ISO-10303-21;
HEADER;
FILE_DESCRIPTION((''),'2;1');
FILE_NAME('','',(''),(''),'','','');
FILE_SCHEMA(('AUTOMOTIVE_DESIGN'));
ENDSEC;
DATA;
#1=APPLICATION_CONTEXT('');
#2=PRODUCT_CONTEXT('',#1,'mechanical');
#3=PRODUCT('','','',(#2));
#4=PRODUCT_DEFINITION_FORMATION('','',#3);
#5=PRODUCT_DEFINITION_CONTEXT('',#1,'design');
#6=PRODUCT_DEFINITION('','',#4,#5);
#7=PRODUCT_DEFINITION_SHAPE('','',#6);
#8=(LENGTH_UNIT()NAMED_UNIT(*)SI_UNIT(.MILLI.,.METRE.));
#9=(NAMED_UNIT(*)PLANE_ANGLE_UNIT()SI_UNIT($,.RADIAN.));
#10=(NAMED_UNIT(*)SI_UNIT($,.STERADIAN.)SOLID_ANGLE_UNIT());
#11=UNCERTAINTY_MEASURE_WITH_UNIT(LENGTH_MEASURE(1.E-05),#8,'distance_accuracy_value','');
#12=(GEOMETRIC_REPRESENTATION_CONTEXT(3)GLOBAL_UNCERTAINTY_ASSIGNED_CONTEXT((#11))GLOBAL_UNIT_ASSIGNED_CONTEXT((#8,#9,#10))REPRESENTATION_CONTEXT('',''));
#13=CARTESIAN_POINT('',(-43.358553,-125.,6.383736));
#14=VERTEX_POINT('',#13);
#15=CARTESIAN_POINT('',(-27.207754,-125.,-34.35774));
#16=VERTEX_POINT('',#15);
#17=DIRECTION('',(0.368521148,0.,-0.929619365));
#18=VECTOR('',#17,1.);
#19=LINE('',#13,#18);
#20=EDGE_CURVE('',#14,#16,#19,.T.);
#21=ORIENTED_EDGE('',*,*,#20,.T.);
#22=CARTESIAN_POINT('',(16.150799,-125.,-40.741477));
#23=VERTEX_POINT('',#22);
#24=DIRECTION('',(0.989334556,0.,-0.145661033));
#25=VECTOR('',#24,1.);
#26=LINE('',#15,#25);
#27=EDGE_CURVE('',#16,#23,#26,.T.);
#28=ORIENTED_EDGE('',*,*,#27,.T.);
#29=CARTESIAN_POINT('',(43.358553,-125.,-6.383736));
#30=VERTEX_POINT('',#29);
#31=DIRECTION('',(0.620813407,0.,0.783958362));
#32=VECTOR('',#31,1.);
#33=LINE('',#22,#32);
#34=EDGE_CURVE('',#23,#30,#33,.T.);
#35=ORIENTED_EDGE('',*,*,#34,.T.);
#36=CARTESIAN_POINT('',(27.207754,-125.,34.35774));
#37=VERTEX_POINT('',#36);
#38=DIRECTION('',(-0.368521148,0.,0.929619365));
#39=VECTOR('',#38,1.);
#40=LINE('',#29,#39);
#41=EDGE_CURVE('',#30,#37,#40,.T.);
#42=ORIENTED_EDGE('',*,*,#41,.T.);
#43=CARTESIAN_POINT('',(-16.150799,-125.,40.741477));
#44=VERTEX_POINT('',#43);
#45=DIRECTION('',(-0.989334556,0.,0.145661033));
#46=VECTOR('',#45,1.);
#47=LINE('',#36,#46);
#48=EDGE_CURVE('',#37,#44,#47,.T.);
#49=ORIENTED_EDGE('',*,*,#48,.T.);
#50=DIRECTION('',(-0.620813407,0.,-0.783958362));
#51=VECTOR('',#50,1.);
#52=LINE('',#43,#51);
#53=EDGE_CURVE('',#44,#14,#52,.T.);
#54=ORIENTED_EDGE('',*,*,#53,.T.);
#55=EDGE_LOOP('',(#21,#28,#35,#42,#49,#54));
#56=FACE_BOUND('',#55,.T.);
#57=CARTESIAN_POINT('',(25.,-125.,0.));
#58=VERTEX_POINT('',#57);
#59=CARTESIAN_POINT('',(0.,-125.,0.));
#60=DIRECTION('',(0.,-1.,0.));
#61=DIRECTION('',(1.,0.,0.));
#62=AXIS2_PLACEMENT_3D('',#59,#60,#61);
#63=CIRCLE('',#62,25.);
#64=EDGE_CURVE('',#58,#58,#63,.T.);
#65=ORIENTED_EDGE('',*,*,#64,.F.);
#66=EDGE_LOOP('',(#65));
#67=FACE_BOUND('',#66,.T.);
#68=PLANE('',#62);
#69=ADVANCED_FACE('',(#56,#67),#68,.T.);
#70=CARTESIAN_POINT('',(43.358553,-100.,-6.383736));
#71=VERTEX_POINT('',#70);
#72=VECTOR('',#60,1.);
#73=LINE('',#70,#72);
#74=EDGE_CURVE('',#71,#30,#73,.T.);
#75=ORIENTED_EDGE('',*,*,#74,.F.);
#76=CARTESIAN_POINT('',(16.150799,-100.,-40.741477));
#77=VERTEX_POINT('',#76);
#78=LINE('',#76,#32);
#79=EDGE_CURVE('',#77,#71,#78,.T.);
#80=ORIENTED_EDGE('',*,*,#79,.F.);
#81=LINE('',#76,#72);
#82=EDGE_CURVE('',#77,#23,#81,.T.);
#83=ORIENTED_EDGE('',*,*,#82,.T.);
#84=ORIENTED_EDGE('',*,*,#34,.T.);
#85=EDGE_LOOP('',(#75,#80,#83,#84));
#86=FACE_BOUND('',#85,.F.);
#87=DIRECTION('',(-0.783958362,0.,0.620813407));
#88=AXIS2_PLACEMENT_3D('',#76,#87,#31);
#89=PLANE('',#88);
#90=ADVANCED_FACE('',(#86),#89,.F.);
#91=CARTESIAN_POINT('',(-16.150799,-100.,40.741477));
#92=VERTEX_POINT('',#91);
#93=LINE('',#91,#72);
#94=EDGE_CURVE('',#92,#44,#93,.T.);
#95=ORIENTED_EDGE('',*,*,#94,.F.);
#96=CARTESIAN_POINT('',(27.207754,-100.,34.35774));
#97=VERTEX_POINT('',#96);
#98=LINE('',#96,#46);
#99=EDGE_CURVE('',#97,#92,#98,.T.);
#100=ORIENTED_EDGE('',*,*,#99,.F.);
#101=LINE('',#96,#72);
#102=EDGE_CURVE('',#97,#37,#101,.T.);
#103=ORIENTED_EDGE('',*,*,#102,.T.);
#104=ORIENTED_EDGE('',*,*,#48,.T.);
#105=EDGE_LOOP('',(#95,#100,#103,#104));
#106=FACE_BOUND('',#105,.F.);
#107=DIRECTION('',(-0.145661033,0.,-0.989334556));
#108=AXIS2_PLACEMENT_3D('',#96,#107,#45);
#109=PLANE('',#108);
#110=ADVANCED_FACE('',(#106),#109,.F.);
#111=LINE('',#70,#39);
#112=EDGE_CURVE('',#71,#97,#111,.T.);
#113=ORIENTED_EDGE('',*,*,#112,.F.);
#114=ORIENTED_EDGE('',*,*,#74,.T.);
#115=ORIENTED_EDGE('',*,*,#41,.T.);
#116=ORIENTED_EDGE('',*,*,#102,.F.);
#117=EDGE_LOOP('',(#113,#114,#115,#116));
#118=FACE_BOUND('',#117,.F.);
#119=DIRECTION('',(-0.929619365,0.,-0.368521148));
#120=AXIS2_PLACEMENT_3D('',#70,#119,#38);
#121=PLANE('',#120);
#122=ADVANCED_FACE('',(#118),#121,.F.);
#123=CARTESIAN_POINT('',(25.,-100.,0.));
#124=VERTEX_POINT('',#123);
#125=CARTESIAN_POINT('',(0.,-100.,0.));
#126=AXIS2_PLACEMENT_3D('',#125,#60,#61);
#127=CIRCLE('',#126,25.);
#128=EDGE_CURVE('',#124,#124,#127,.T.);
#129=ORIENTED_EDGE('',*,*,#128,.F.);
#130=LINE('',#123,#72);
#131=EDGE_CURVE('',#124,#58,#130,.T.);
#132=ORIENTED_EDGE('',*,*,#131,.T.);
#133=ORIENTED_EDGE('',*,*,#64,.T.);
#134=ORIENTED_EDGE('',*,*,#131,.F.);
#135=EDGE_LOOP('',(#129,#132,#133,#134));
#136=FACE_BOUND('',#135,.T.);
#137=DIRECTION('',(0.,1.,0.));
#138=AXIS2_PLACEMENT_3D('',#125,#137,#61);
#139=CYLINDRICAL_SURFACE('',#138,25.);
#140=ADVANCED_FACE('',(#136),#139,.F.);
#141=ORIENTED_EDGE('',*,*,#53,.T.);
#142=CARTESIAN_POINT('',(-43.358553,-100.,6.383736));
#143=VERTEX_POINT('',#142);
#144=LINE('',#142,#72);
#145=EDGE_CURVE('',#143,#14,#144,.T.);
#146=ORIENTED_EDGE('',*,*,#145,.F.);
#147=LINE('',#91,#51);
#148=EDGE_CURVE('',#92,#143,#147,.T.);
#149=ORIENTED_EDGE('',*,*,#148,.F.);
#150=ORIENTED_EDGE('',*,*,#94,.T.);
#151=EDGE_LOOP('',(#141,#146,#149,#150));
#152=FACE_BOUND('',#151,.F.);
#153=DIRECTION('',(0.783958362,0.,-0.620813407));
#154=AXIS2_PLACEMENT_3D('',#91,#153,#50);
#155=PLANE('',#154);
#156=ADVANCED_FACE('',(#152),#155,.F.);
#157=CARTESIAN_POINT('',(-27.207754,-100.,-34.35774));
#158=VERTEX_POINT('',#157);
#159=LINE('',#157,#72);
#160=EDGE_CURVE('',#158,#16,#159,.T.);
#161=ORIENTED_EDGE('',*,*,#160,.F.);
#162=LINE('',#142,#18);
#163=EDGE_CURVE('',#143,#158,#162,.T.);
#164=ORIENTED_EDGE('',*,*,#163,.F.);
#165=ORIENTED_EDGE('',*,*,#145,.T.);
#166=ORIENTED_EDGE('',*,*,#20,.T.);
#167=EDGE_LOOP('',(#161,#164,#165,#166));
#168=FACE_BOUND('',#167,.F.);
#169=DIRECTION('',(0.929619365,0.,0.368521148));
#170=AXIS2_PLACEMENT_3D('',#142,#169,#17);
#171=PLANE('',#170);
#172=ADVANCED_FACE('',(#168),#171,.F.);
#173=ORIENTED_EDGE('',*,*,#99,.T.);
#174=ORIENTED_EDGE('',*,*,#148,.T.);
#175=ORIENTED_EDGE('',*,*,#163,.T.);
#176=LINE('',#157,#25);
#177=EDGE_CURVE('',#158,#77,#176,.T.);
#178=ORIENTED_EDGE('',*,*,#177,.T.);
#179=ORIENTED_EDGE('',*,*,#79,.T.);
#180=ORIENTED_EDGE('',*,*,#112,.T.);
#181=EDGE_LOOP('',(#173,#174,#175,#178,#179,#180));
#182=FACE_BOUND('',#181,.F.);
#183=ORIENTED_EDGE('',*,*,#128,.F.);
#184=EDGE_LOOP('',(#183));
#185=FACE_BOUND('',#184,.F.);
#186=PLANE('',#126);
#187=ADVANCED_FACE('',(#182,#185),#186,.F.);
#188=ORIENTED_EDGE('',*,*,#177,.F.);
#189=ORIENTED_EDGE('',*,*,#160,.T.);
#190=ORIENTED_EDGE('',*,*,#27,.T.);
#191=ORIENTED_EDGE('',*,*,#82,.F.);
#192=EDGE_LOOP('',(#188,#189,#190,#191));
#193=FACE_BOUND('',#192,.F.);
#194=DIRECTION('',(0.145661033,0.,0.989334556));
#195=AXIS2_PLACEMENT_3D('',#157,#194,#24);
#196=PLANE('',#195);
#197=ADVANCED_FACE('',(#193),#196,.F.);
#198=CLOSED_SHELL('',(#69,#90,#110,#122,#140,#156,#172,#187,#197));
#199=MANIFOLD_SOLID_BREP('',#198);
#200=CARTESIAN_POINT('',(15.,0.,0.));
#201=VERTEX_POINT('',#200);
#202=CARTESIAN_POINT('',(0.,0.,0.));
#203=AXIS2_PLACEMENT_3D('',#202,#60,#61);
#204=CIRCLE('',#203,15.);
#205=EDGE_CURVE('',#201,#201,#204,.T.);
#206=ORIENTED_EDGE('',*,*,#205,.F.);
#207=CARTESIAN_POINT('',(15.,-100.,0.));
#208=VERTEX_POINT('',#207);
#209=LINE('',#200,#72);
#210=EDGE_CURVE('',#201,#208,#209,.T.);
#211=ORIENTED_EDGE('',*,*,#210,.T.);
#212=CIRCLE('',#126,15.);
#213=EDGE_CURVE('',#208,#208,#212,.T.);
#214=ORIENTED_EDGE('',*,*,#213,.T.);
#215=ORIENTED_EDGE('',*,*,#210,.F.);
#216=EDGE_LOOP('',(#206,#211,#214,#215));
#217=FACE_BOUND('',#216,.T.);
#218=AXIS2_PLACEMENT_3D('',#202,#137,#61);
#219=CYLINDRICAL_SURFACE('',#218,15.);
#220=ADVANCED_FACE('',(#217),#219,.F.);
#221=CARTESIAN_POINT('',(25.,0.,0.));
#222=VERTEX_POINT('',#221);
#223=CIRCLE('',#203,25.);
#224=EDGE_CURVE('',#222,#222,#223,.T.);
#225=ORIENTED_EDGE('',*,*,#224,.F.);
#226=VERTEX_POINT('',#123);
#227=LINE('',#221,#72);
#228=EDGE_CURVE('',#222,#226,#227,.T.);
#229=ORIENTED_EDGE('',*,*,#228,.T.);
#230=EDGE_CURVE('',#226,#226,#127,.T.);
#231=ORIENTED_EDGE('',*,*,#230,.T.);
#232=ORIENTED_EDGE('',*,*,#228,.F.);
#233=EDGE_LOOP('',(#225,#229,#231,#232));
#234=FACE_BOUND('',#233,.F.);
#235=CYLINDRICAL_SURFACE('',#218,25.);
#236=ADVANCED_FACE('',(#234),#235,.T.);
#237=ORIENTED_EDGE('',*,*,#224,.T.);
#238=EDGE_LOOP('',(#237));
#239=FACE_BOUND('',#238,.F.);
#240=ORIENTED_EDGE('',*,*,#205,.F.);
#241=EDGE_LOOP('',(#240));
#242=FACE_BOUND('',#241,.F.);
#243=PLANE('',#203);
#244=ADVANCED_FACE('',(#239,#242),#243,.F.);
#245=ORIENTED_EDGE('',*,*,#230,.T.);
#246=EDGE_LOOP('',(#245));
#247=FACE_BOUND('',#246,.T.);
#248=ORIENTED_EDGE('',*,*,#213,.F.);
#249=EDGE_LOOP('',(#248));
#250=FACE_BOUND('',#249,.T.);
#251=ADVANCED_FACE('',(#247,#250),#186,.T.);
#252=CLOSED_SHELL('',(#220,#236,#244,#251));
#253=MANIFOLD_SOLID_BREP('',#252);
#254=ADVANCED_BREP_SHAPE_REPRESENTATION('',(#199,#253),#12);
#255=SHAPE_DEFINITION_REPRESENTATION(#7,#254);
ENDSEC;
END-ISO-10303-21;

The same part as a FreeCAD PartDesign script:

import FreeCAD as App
import Part
import Sketcher

V = App.Vector


def add_polygon(sketch, points):
    """Adds a closed chain of lines whose ends are joined by coincident constraints."""
    first, n = sketch.GeometryCount, len(points)
    for a, b in zip(points, points[1:] + points[:1]):
        sketch.addGeometry(Part.LineSegment(App.Vector(*a, 0), App.Vector(*b, 0)), False)
    for i in range(n):
        sketch.addConstraint(Sketcher.Constraint("Coincident", first + i, 2, first + (i + 1) % n, 1))

doc = App.newDocument("Part")
body = doc.addObject("PartDesign::Body", "Body")

sketch1 = body.newObject("Sketcher::SketchObject", "Sketch")
sketch1.AttachmentSupport = (doc.getObject("XZ_Plane"), [""])
sketch1.MapMode = "FlatFace"
sketch1.addGeometry([
    Part.Circle(V(0, 0, 0), V(0, 0, 1), 25),
    Part.Circle(V(0, 0, 0), V(0, 0, 1), 15),
], False)
sketch1.addConstraint([
    Sketcher.Constraint("Coincident", 0, 3, -1, 1),
    Sketcher.Constraint("Coincident", 1, 3, -1, 1),
    Sketcher.Constraint("Diameter", 0, 50.0),
    Sketcher.Constraint("Diameter", 1, 30.0),
])
pad1 = body.newObject("PartDesign::Pad", "Pad")
pad1.Profile = sketch1
pad1.Length = 100
body2 = doc.addObject("PartDesign::Body", "Body001")

sketch2 = body2.newObject("Sketcher::SketchObject", "Sketch001")
sketch2.AttachmentSupport = (doc.getObject("XZ_Plane001"), [""])
sketch2.MapMode = "FlatFace"
sketch2.AttachmentOffset = App.Placement(V(0, 0, 100), App.Rotation())
add_polygon(sketch2, [(16.150799, -40.741477), (43.358553, -6.383736), (27.207754, 34.35774), (-16.150799, 40.741477), (-43.358553, 6.383736), (-27.207754, -34.35774)])
sketch2.addGeometry(Part.Circle(V(0, 0, 0), V(0, 0, 1), 25), False)
sketch2.addConstraint([
    Sketcher.Constraint("Coincident", 6, 3, -1, 1),
    Sketcher.Constraint("Symmetric", 0, 2, 3, 2, -1, 1),
    Sketcher.Constraint("Symmetric", 1, 2, 4, 2, -1, 1),
    Sketcher.Constraint("Symmetric", 2, 2, 5, 2, -1, 1),
    Sketcher.Constraint("Equal", 0, 1),
    Sketcher.Constraint("Equal", 1, 2),
    Sketcher.Constraint("Diameter", 6, 50.0),
    Sketcher.Constraint("DistanceX", 2, 2, -1, 1, 16.150799),
    Sketcher.Constraint("DistanceX", 1, 2, 0, 2, 16.150799),
    Sketcher.Constraint("DistanceY", -1, 1, 1, 2, 34.35774),
    Sketcher.Constraint("DistanceY", 3, 2, 2, 2, 34.357741),
])
pad2 = body2.newObject("PartDesign::Pad", "Pad001")
pad2.Profile = sketch2
pad2.Length = 25

doc.recompute()
